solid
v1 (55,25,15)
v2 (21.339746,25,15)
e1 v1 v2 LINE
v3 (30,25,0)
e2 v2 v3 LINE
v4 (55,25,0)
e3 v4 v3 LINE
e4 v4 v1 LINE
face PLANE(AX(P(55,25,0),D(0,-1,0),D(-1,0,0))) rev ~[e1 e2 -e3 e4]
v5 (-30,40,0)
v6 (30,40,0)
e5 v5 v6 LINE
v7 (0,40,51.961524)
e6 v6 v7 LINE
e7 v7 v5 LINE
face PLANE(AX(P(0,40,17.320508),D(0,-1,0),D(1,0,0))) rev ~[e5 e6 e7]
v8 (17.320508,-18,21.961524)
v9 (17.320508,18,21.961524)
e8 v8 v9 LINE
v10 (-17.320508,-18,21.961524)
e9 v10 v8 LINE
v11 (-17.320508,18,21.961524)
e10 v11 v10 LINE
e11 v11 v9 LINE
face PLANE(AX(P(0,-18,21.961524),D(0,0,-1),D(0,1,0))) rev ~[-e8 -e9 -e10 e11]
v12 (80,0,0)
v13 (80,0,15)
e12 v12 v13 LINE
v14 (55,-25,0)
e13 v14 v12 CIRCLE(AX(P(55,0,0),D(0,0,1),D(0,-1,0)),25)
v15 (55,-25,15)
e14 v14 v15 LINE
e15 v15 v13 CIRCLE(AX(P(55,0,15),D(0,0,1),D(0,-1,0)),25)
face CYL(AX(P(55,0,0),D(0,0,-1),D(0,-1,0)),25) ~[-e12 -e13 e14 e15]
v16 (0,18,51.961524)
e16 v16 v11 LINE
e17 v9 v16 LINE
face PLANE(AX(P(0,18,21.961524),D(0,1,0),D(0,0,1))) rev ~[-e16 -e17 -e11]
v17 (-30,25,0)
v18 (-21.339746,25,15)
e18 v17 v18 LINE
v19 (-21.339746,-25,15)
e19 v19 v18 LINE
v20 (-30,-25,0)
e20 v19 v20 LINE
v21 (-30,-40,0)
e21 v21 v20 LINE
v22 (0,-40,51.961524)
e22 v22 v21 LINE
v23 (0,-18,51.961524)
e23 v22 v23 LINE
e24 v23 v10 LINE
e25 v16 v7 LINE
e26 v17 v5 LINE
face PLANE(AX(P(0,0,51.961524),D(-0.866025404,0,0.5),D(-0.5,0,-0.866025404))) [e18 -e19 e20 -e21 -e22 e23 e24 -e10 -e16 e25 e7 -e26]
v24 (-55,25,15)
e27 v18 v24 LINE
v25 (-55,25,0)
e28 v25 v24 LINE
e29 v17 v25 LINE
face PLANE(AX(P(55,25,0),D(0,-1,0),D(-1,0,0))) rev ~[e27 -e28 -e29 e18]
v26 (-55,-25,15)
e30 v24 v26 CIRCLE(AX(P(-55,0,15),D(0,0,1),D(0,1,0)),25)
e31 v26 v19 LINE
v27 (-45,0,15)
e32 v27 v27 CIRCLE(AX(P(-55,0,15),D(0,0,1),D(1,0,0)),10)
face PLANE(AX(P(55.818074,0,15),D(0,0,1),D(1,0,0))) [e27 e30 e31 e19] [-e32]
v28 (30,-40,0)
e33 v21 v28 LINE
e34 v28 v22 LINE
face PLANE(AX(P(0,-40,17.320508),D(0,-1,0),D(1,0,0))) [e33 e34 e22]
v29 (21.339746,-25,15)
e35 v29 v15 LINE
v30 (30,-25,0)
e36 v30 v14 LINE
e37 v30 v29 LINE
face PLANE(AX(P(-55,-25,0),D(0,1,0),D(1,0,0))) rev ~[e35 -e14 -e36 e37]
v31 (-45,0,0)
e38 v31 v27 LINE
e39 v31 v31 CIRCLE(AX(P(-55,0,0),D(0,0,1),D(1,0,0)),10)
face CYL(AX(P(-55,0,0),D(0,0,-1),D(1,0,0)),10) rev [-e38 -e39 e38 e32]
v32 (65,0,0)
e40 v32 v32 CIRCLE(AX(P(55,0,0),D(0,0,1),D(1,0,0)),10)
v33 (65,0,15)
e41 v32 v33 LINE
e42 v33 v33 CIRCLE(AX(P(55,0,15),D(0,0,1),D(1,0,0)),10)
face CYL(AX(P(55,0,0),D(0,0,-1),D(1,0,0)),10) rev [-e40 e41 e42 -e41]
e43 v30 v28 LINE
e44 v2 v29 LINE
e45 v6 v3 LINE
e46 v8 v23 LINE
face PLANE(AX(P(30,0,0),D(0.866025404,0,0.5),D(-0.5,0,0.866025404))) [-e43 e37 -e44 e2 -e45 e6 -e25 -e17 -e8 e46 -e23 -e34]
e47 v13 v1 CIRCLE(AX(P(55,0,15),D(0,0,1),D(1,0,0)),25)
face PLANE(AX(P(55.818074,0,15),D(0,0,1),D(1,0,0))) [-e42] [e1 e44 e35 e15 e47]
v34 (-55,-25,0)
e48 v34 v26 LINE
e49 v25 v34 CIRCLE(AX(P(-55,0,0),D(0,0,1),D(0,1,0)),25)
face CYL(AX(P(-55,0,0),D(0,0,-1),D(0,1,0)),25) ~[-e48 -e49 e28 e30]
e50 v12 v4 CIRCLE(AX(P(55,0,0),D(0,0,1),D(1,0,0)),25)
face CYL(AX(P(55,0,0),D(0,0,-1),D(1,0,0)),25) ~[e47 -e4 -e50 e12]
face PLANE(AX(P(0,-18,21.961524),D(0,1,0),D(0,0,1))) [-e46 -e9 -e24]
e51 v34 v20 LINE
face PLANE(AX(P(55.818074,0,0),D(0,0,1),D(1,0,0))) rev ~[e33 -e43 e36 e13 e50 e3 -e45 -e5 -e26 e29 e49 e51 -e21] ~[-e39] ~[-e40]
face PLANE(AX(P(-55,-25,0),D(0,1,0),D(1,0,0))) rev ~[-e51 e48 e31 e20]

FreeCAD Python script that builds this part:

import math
import FreeCAD as App
import Part
import Sketcher
from FreeCAD import Vector
Q = App.Units.Quantity

doc = App.newDocument("Part")
body = doc.addObject("PartDesign::Body", "Body")

# Sketch on XZ plane
sketch1 = doc.addObject("Sketcher::SketchObject", "Sketch")
body.addObject(sketch1)
sketch1.AttachmentSupport = (doc.XZ_Plane, [""])
sketch1.MapMode = "FlatFace"
sketch1.addGeometry([
    Part.LineSegment(Vector(-30, 0, 0), Vector(30, 0, 0)),
    Part.LineSegment(Vector(30, 0, 0), Vector(0, 52, 0)),
    Part.LineSegment(Vector(0, 52, 0), Vector(-30, 0, 0)),
], False)
sketch1.addConstraint([
    Sketcher.Constraint("Coincident", 0, 2, 1, 1),
    Sketcher.Constraint("Coincident", 1, 2, 2, 1),
    Sketcher.Constraint("Coincident", 2, 2, 0, 1),
    Sketcher.Constraint("Horizontal", 0),
    Sketcher.Constraint("Symmetric", 0, 2, 2, 2, -1, 1),
    Sketcher.Constraint("PointOnObject", 1, 2, -2),
    Sketcher.Constraint("DistanceX", 0, 1, 0, 2, 60.0),
    Sketcher.Constraint("Angle", 1, Q("120 deg")),
])
pad1 = doc.addObject("PartDesign::Pad", "Pad")
body.addObject(pad1)
pad1.Profile = sketch1
pad1.Length = 80
pad1.Midplane = True

# Sketch on XY plane
sketch2 = doc.addObject("Sketcher::SketchObject", "Sketch001")
body.addObject(sketch2)
sketch2.AttachmentSupport = (doc.XY_Plane, [""])
sketch2.MapMode = "FlatFace"
sketch2.addGeometry([
    Part.ArcOfCircle(Part.Circle(Vector(55, 0, 0), Vector(0, 0, 1), 25), math.radians(-90), math.radians(0)),  # 0
    Part.ArcOfCircle(Part.Circle(Vector(55, 0, 0), Vector(0, 0, 1), 25), math.radians(0), math.radians(90)),  # 1
    Part.LineSegment(Vector(55, 25, 0), Vector(-55, 25, 0)),  # 2
    Part.ArcOfCircle(Part.Circle(Vector(-55, 0, 0), Vector(0, 0, 1), 25), math.radians(90), math.radians(270)),  # 3
    Part.LineSegment(Vector(-55, -25, 0), Vector(55, -25, 0)),  # 4
    Part.Circle(Vector(-55, 0, 0), Vector(0, 0, 1), 10),  # 5
    Part.Circle(Vector(55, 0, 0), Vector(0, 0, 1), 10),  # 6
], False)
sketch2.addConstraint([
    Sketcher.Constraint("Tangent", 0, 2, 1, 1),
    Sketcher.Constraint("Tangent", 1, 2, 2, 1),
    Sketcher.Constraint("Tangent", 2, 2, 3, 1),
    Sketcher.Constraint("Tangent", 3, 2, 4, 1),
    Sketcher.Constraint("Tangent", 4, 2, 0, 1),
    Sketcher.Constraint("Horizontal", 2),
    Sketcher.Constraint("Horizontal", 4),
    Sketcher.Constraint("Coincident", 5, 3, 3, 3),
    Sketcher.Constraint("Coincident", 6, 3, 0, 3),
    Sketcher.Constraint("Equal", 0, 1),
    Sketcher.Constraint("Equal", 5, 6),
    Sketcher.Constraint("Symmetric", 0, 3, 3, 3, -1, 1),
    Sketcher.Constraint("PointOnObject", 0, 2, -1),
    Sketcher.Constraint("Diameter", 5, 20.0),
    Sketcher.Constraint("Radius", 0, 25.0),
    Sketcher.Constraint("DistanceX", 2, 2, 2, 1, 110.0),
])
pad2 = doc.addObject("PartDesign::Pad", "Pad001")
body.addObject(pad2)
pad2.Profile = sketch2
pad2.Length = 15

# Sketch on YZ plane
sketch3 = doc.addObject("Sketcher::SketchObject", "Sketch002")
body.addObject(sketch3)
sketch3.AttachmentSupport = (doc.YZ_Plane, [""])
sketch3.MapMode = "FlatFace"
sketch3.addGeometry([
    Part.LineSegment(Vector(-18, 52, 0), Vector(-18, 22, 0)),
    Part.LineSegment(Vector(-18, 22, 0), Vector(18, 22, 0)),
    Part.LineSegment(Vector(18, 22, 0), Vector(18, 52, 0)),
    Part.LineSegment(Vector(18, 52, 0), Vector(-18, 52, 0)),
], False)
sketch3.addConstraint([
    Sketcher.Constraint("Coincident", 0, 2, 1, 1),
    Sketcher.Constraint("Coincident", 1, 2, 2, 1),
    Sketcher.Constraint("Coincident", 2, 2, 3, 1),
    Sketcher.Constraint("Coincident", 3, 2, 0, 1),
    Sketcher.Constraint("Vertical", 0),
    Sketcher.Constraint("Horizontal", 1),
    Sketcher.Constraint("Vertical", 2),
    Sketcher.Constraint("Horizontal", 3),
    Sketcher.Constraint("DistanceX", 1, 1, 1, 2, 36.0),
    Sketcher.Constraint("DistanceY", 0, 2, 0, 1, 30.0),
    Sketcher.Constraint("DistanceX", 0, 2, -1, 1, 18.0),
    Sketcher.Constraint("DistanceY", -1, 1, 0, 2, 21.961524),
])
pocket1 = doc.addObject("PartDesign::Pocket", "Pocket")
body.addObject(pocket1)
pocket1.Profile = sketch3
pocket1.Length = 60
pocket1.Midplane = True

doc.recompute()
